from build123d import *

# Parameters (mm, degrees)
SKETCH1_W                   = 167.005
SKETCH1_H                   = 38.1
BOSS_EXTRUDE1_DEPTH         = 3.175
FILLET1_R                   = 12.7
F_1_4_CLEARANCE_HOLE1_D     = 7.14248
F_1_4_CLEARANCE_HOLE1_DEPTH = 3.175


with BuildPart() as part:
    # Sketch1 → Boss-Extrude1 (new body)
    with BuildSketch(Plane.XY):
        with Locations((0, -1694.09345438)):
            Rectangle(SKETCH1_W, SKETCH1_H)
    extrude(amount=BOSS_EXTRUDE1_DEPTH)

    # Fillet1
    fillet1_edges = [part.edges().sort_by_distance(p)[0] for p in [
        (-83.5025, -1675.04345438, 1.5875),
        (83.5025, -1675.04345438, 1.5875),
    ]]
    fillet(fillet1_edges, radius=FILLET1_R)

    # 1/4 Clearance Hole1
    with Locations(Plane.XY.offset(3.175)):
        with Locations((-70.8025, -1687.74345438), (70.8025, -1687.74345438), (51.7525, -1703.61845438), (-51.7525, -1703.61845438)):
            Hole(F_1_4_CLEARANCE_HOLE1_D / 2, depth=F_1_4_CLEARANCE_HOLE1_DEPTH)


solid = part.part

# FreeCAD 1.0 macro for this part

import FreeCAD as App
import Part
import Sketcher
Q = App.Units.Quantity


def edges_at(feature, points):
    """Names of the edges that pass closest to the given points."""
    edges = feature.Shape.Edges
    near = lambda p: min(range(len(edges)), key=lambda i: edges[i].distToShape(Part.Vertex(*p))[0])
    return sorted({f"Edge{near(p) + 1}" for p in points})


def add_polygon(sketch, points):
    """Adds a closed chain of lines whose ends are joined by coincident constraints."""
    first, n = sketch.GeometryCount, len(points)
    for a, b in zip(points, points[1:] + points[:1]):
        sketch.addGeometry(Part.LineSegment(App.Vector(*a, 0), App.Vector(*b, 0)), False)
    for i in range(n):
        sketch.addConstraint(Sketcher.Constraint("Coincident", first + i, 2, first + (i + 1) % n, 1))

doc = App.newDocument("Part")
body = doc.addObject("PartDesign::Body", "Body")

sketch1 = body.newObject("Sketcher::SketchObject", "Sketch")
sketch1.AttachmentSupport = (doc.getObject("XY_Plane"), [""])
sketch1.MapMode = "FlatFace"
add_polygon(sketch1, [(-84, -1675), (-84, -1713), (84, -1713), (84, -1675)])
sketch1.addConstraint([
    Sketcher.Constraint("Vertical", 0),
    Sketcher.Constraint("Horizontal", 1),
    Sketcher.Constraint("Vertical", 2),
    Sketcher.Constraint("Horizontal", 3),
    Sketcher.Constraint("DistanceY", 0, 2, 0, 1, Q("1.5 in")),
    Sketcher.Constraint("DistanceX", 1, 1, 1, 2, Q("6.575 in")),
    Sketcher.Constraint("DistanceX", 0, 2, -1, 1, Q("3.2875 in")),
    Sketcher.Constraint("DistanceY", 0, 2, -1, 1, 1713.143454),
])
pad1 = body.newObject("PartDesign::Pad", "Pad")
pad1.Profile = sketch1
pad1.Length = Q("0.125 in")
doc.recompute()

fillet = body.newObject("PartDesign::Fillet", "Fillet")
fillet.Base = (pad1, edges_at(pad1, [(-83.502, -1675.043, 1.587), (83.502, -1675.043, 1.587)]))
fillet.Radius = Q("0.5 in")

sketch2 = body.newObject("Sketcher::SketchObject", "Sketch001")
sketch2.AttachmentSupport = (doc.getObject("XY_Plane"), [""])
sketch2.MapMode = "FlatFace"
sketch2.AttachmentOffset = App.Placement(App.Vector(0, 0, 0.125 * 25.4), App.Rotation())
sketch2.addGeometry([
    Part.Circle(App.Vector(-70.8, -1687.7, 0), App.Vector(0, 0, 1), 3.6),
    Part.Circle(App.Vector(70.8, -1687.7, 0), App.Vector(0, 0, 1), 3.6),
    Part.Circle(App.Vector(51.8, -1703.6, 0), App.Vector(0, 0, 1), 3.6),
    Part.Circle(App.Vector(-51.8, -1703.6, 0), App.Vector(0, 0, 1), 3.6),
], False)
sketch2.addConstraint([
    Sketcher.Constraint("Equal", 0, 1),
    Sketcher.Constraint("Equal", 1, 2),
    Sketcher.Constraint("Equal", 2, 3),
    Sketcher.Constraint("Symmetric", 0, 3, 1, 3, -2),
    Sketcher.Constraint("Symmetric", 2, 3, 3, 3, -2),
    Sketcher.Constraint("Diameter", 0, Q("0.2812 in")),
    Sketcher.Constraint("DistanceX", 2, 3, 1, 3, Q("0.75 in")),
    Sketcher.Constraint("DistanceX", 0, 3, 1, 3, Q("5.575 in")),
    Sketcher.Constraint("DistanceY", 2, 3, 1, 3, Q("0.625 in")),
    Sketcher.Constraint("DistanceY", 0, 3, -1, 1, 1687.743454),
])
doc.recompute()
hole = body.newObject("PartDesign::Hole", "Hole")
hole.Profile = sketch2
hole.ThreadType = "None"
hole.Diameter = Q("0.2812 in")
hole.DepthType = "Dimension"
hole.Depth = Q("0.125 in")
hole.DrillPoint = "Flat"

doc.recompute()
